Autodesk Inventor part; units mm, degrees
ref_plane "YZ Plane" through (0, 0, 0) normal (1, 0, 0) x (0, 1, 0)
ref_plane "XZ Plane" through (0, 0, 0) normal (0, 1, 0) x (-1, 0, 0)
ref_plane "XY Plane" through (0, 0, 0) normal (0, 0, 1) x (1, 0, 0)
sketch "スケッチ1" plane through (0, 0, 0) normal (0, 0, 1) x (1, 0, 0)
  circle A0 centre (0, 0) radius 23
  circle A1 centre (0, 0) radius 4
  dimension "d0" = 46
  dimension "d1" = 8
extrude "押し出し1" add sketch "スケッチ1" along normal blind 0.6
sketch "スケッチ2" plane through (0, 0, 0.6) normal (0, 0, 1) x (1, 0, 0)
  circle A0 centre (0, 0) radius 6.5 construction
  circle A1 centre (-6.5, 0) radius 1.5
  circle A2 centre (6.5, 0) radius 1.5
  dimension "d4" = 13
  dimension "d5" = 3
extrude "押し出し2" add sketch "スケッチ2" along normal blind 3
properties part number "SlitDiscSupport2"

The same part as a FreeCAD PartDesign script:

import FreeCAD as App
import Part
import Sketcher

doc = App.newDocument("Part")
body = doc.addObject("PartDesign::Body", "Body")

# Sketch on XY plane
sketch1 = body.newObject("Sketcher::SketchObject", "Sketch")
sketch1.AttachmentSupport = (doc.getObject("XY_Plane"), [""])
sketch1.MapMode = "FlatFace"
sketch1.addGeometry([
    Part.Circle(App.Vector(0, 0, 0), App.Vector(0, 0, 1), 23),
    Part.Circle(App.Vector(0, 0, 0), App.Vector(0, 0, 1), 4),
], False)
sketch1.addConstraint([
    Sketcher.Constraint("Coincident", 0, 3, -1, 1),
    Sketcher.Constraint("Coincident", 1, 3, -1, 1),
    Sketcher.Constraint("Diameter", 0, 46.0),
    Sketcher.Constraint("Diameter", 1, 8.0),
])
pad1 = body.newObject("PartDesign::Pad", "Pad")
pad1.Profile = sketch1
pad1.Length = 0.6

# Sketch on XY plane
sketch2 = body.newObject("Sketcher::SketchObject", "Sketch001")
sketch2.AttachmentSupport = (doc.getObject("XY_Plane"), [""])
sketch2.MapMode = "FlatFace"
sketch2.AttachmentOffset = App.Placement(App.Vector(0, 0, 0.6), App.Rotation())
sketch2.addGeometry([
    Part.Circle(App.Vector(-6.5, 0, 0), App.Vector(0, 0, 1), 1.5),
    Part.Circle(App.Vector(6.5, 0, 0), App.Vector(0, 0, 1), 1.5),
], False)
sketch2.addConstraint([
    Sketcher.Constraint("Equal", 0, 1),
    Sketcher.Constraint("Symmetric", 0, 3, 1, 3, -1, 1),
    Sketcher.Constraint("PointOnObject", 0, 3, -1),
    Sketcher.Constraint("Diameter", 0, 3.0),
    Sketcher.Constraint("DistanceX", 0, 3, 1, 3, 13.0),
])
pad2 = body.newObject("PartDesign::Pad", "Pad001")
pad2.Profile = sketch2
pad2.Length = 3

doc.recompute()
